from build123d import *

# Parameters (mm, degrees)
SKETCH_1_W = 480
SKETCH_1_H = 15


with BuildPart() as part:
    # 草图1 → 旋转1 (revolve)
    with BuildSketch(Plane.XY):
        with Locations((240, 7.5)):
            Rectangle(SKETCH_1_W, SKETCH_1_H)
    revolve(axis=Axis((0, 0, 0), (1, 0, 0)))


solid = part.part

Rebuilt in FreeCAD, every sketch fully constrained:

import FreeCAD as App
import Part
import Sketcher
Q = App.Units.Quantity

doc = App.newDocument("Part")
body = doc.addObject("PartDesign::Body", "Body")

# Sketch on XY plane
sketch1 = doc.addObject("Sketcher::SketchObject", "Sketch")
body.addObject(sketch1)
sketch1.AttachmentSupport = (doc.XY_Plane, [""])
sketch1.MapMode = "FlatFace"
sketch1.addGeometry([
    Part.LineSegment(App.Vector(0, 15, 0), App.Vector(0, 0, 0)),
    Part.LineSegment(App.Vector(0, 0, 0), App.Vector(480, 0, 0)),
    Part.LineSegment(App.Vector(480, 0, 0), App.Vector(480, 15, 0)),
    Part.LineSegment(App.Vector(480, 15, 0), App.Vector(0, 15, 0)),
], False)
sketch1.addConstraint([
    Sketcher.Constraint("Coincident", 0, 2, 1, 1),
    Sketcher.Constraint("Coincident", 1, 2, 2, 1),
    Sketcher.Constraint("Coincident", 2, 2, 3, 1),
    Sketcher.Constraint("Coincident", 3, 2, 0, 1),
    Sketcher.Constraint("Vertical", 0),
    Sketcher.Constraint("Horizontal", 1),
    Sketcher.Constraint("Vertical", 2),
    Sketcher.Constraint("Horizontal", 3),
    Sketcher.Constraint("Coincident", 0, 2, -1, 1),
    Sketcher.Constraint("DistanceX", 1, 1, 1, 2, Q("480 mm")),
    Sketcher.Constraint("DistanceY", 0, 2, 0, 1, Q("15 mm")),
])
revolution = doc.addObject("PartDesign::Revolution", "Revolution")
body.addObject(revolution)
revolution.Profile = sketch1
revolution.ReferenceAxis = (sketch1, ["H_Axis"])
revolution.Angle = 360

doc.recompute()
